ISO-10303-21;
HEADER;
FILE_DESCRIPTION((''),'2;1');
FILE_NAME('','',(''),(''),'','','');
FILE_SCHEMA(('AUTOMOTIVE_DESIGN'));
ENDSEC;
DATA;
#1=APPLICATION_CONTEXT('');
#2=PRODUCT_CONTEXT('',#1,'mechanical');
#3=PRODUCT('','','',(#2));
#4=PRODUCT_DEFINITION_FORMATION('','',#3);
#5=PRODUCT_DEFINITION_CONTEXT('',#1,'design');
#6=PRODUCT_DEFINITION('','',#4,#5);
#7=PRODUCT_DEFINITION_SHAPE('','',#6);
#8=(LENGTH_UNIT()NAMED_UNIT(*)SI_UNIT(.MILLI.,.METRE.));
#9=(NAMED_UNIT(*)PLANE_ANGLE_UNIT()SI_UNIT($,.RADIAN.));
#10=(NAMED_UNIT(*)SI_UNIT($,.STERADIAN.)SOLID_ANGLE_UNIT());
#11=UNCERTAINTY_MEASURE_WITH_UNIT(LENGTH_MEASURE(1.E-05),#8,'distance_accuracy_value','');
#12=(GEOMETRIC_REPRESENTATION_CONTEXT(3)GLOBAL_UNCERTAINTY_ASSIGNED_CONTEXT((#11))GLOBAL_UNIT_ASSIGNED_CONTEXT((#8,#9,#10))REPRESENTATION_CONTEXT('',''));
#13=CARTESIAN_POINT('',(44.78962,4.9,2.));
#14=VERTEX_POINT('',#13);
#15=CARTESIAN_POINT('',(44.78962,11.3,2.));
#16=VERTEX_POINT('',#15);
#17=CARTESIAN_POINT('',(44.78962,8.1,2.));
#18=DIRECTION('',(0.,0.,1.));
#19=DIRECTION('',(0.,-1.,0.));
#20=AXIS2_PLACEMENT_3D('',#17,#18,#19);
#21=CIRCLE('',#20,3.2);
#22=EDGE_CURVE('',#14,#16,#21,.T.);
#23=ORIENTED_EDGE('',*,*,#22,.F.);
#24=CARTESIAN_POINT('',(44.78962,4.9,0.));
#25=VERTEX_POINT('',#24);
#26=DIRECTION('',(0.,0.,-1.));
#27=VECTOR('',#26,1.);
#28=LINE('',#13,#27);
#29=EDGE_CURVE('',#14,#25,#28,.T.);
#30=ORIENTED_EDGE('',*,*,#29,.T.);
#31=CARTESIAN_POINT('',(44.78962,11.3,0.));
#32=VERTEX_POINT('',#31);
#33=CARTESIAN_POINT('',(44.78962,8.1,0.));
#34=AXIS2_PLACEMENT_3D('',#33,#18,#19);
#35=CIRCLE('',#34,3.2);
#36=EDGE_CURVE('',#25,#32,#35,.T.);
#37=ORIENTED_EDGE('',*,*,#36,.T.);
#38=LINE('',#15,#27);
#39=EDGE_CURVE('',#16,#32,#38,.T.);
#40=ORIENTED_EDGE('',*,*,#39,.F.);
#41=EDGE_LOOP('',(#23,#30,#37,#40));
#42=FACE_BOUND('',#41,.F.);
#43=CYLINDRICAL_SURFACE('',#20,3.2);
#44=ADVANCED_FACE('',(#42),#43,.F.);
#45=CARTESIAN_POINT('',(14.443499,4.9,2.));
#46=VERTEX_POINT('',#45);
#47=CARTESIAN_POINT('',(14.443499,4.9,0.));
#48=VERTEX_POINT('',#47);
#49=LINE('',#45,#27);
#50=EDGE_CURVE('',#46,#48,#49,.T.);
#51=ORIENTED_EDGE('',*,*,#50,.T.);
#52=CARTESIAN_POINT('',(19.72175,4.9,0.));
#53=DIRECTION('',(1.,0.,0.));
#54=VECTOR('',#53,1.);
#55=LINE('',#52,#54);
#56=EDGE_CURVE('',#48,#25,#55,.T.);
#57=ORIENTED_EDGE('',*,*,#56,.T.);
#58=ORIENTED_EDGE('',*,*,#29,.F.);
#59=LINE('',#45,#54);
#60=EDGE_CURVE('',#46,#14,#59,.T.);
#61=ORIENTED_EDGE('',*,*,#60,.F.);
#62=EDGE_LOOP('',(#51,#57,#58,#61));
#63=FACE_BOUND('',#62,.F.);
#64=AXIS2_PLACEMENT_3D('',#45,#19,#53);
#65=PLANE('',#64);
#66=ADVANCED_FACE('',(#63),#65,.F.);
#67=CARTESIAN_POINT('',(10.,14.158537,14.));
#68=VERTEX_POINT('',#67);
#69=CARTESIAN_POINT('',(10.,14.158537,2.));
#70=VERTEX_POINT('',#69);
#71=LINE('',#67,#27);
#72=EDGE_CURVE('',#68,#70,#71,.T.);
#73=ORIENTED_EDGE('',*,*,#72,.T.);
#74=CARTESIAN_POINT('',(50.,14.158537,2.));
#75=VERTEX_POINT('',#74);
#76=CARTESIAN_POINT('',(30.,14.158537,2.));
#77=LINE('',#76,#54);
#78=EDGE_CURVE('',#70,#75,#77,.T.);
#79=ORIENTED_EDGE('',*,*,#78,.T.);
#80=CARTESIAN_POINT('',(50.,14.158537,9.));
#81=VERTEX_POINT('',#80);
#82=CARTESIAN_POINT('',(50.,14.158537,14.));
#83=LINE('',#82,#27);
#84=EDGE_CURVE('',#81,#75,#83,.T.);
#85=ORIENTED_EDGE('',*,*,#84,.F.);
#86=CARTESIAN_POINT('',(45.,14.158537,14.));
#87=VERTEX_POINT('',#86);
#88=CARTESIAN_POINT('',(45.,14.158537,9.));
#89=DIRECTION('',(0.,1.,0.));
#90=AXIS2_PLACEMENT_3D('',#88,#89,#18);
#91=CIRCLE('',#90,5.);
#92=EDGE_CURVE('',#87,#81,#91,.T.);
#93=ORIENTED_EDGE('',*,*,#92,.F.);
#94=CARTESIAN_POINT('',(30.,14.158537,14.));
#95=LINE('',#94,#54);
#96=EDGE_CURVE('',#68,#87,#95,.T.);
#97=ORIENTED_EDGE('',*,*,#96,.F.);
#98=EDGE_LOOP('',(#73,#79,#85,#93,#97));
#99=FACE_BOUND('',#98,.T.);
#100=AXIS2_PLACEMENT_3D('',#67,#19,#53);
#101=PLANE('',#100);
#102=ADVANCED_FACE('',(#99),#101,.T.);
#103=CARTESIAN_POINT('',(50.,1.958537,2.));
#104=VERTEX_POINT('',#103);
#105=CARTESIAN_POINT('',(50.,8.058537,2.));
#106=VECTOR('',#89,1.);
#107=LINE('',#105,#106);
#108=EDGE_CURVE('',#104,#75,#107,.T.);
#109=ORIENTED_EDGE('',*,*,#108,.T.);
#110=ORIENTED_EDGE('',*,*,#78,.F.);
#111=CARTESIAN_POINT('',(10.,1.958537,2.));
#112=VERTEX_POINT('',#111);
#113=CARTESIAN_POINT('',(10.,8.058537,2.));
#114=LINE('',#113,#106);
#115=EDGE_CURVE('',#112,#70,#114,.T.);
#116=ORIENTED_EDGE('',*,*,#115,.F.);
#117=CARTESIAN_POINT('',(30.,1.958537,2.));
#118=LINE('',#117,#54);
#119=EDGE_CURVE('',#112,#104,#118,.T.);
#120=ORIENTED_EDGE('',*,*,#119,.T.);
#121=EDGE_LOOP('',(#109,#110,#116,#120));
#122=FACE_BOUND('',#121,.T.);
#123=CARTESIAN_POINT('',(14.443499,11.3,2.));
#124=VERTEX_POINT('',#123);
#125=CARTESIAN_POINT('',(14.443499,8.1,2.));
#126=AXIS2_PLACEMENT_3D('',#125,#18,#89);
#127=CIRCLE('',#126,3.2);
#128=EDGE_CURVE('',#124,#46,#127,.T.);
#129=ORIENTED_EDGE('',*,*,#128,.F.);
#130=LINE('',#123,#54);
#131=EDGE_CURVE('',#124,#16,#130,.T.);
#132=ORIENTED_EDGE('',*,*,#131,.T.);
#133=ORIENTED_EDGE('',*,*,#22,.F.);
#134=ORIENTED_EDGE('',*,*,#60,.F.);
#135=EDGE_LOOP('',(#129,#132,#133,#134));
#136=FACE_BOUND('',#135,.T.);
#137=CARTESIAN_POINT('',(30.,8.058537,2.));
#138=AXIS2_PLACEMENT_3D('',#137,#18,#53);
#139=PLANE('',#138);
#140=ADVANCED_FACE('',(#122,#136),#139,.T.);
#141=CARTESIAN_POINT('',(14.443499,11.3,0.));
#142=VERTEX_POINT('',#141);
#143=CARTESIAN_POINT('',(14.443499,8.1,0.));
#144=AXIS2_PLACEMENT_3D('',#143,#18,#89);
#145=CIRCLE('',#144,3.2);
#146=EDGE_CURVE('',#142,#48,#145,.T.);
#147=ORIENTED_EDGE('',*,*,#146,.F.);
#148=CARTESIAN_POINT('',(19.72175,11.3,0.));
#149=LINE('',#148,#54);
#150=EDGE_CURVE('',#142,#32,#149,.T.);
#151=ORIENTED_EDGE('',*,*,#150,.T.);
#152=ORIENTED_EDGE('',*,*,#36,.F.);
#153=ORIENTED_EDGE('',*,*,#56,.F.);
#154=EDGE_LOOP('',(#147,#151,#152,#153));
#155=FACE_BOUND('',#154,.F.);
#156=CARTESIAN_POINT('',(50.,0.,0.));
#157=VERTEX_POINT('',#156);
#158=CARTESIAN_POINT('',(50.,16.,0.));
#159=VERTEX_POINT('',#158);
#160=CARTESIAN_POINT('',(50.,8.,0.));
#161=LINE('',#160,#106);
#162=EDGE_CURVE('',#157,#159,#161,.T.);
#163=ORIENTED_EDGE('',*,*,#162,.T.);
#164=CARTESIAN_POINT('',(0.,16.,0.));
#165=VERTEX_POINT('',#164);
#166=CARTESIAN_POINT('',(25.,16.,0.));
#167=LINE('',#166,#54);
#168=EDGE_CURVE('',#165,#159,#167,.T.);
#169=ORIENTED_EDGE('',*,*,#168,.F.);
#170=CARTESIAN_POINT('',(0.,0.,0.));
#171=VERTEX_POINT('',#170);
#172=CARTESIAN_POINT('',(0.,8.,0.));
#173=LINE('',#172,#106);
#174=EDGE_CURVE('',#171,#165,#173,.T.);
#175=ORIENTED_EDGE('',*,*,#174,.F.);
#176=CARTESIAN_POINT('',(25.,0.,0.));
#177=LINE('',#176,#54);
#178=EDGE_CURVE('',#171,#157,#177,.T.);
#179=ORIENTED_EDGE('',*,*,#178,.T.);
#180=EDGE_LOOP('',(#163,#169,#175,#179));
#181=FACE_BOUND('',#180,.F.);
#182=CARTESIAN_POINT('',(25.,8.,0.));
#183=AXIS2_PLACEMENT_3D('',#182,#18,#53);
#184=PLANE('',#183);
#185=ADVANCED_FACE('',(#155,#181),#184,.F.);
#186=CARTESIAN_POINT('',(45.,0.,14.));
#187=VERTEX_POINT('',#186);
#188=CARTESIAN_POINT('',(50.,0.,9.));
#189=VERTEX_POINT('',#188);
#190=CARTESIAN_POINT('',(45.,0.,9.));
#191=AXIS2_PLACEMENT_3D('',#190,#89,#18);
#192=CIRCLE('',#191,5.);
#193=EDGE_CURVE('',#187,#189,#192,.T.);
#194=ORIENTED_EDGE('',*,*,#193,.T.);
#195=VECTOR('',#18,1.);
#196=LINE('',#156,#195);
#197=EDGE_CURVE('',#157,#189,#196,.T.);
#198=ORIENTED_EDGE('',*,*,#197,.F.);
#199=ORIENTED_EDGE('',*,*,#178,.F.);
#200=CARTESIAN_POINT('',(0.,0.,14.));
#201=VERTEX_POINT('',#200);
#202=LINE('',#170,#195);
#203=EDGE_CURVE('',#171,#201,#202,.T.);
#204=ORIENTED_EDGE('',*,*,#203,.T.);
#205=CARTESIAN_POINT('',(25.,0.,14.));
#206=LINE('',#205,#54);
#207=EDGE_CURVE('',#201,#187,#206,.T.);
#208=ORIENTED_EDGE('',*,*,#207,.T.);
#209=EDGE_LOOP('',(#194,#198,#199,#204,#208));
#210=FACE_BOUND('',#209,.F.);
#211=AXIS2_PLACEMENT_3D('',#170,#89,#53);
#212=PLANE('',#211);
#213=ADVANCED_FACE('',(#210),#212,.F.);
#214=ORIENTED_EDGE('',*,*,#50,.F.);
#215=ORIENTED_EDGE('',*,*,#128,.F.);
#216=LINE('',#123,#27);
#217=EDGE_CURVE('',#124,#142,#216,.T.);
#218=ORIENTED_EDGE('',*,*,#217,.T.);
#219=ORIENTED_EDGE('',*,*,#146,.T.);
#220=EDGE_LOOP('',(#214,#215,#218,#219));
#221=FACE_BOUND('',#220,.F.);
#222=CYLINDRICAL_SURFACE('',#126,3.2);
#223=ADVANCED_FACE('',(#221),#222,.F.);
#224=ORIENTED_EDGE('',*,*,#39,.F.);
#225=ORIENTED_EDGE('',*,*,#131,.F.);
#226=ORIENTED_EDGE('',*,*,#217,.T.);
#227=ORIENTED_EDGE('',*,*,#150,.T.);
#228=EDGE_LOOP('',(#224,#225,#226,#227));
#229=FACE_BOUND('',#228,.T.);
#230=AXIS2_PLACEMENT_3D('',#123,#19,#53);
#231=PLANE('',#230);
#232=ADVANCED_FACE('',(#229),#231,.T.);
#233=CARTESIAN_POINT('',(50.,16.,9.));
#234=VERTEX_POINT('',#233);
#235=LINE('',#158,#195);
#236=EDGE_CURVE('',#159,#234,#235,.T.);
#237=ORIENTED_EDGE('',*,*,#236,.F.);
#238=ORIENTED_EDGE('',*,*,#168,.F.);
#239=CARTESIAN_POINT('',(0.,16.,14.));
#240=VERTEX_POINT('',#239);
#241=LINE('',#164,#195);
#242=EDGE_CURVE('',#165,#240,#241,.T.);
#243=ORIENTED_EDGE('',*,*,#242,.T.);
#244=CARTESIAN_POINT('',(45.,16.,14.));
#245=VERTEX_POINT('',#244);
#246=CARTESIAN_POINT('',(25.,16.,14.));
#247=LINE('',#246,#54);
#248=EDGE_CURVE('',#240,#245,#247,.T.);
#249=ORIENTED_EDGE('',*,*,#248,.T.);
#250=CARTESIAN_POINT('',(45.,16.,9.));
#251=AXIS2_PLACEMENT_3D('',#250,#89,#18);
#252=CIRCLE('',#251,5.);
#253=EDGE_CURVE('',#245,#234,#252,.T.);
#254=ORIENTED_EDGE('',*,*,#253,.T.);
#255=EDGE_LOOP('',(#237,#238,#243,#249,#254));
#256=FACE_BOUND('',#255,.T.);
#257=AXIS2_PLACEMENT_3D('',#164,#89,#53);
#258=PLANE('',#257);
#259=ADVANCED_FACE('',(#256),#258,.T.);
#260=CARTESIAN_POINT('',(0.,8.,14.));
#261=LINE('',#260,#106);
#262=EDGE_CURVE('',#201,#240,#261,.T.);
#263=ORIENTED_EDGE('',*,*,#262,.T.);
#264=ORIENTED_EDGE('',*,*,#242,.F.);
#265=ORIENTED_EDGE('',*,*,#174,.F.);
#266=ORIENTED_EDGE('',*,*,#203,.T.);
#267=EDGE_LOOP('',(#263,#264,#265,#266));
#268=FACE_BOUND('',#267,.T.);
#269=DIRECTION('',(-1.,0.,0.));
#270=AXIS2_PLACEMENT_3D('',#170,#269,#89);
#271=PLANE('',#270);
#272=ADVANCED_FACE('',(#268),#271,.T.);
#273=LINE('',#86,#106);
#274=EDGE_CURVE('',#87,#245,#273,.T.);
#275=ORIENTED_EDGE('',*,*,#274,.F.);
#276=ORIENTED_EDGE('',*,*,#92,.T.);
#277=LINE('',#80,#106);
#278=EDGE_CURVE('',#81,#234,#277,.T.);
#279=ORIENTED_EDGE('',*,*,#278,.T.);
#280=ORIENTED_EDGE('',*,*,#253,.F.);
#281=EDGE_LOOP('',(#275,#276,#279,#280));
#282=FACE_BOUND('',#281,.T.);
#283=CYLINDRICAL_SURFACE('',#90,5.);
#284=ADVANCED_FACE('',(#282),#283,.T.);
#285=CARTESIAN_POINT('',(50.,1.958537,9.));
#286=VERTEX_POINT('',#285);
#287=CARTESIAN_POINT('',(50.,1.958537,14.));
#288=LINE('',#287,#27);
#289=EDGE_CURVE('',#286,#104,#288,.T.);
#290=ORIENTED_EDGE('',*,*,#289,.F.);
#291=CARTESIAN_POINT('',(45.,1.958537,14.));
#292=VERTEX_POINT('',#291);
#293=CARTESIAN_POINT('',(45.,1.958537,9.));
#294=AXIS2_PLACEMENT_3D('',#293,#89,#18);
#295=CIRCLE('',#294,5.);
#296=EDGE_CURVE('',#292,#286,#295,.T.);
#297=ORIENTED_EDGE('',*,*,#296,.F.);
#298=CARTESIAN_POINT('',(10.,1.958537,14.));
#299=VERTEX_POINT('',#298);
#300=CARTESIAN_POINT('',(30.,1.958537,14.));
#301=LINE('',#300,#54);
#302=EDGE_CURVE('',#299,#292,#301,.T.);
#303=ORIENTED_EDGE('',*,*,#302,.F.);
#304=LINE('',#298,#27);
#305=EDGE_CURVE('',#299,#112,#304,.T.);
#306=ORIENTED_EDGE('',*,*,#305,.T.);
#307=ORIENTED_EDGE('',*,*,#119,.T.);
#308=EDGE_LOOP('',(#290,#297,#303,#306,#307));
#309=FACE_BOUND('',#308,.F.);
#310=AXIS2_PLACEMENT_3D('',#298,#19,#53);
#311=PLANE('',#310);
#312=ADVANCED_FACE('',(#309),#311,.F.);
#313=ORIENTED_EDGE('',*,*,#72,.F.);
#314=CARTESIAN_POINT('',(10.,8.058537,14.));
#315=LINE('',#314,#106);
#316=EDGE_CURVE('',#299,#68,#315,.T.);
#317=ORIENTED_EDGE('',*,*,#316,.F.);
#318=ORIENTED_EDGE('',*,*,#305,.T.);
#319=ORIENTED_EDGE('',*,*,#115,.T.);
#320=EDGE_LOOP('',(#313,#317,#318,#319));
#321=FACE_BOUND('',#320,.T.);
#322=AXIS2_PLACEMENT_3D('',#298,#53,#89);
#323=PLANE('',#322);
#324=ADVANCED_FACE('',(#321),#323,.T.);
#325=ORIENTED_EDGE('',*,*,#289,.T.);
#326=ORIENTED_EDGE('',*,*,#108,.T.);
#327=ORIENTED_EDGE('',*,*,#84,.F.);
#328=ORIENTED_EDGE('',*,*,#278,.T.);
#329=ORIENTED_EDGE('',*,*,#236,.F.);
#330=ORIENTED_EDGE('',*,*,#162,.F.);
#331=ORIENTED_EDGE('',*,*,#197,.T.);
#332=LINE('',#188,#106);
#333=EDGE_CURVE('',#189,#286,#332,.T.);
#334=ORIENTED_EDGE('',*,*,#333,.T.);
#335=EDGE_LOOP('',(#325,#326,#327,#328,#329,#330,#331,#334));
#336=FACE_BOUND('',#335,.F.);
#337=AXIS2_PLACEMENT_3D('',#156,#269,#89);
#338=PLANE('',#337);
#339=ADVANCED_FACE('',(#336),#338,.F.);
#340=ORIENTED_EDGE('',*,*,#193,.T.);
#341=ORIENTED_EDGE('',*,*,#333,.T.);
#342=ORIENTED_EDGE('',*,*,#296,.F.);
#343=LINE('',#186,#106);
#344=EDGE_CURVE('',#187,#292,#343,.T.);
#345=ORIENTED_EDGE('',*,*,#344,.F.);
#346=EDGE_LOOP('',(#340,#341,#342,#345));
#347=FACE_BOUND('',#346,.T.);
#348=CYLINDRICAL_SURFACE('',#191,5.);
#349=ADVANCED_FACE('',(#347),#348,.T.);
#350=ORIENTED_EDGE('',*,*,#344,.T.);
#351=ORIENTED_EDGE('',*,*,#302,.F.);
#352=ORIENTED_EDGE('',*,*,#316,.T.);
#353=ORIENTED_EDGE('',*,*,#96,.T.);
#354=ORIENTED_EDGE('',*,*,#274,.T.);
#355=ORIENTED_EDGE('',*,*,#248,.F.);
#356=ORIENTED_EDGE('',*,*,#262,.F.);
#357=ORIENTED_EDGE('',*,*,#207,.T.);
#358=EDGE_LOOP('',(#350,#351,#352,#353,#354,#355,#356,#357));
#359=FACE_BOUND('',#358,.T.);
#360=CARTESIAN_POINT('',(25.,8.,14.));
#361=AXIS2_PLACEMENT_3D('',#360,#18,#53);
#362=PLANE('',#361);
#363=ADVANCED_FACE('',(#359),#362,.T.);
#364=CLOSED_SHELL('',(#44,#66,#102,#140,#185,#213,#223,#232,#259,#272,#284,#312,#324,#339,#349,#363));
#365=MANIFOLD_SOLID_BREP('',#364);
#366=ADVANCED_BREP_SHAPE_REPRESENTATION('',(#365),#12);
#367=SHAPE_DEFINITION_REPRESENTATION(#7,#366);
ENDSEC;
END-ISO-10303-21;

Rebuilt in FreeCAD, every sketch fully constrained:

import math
import FreeCAD as App
import Part
import Sketcher
Q = App.Units.Quantity


def edges_at(feature, points):
    """Names of the edges that pass closest to the given points."""
    edges = feature.Shape.Edges
    near = lambda p: min(range(len(edges)), key=lambda i: edges[i].distToShape(Part.Vertex(*p))[0])
    return sorted({f"Edge{near(p) + 1}" for p in points})

doc = App.newDocument("Part")
body = doc.addObject("PartDesign::Body", "Body")

# Sketch on XY plane
sketch1 = body.newObject("Sketcher::SketchObject", "Sketch")
sketch1.AttachmentSupport = (doc.getObject("XY_Plane"), [""])
sketch1.MapMode = "FlatFace"
sketch1.addGeometry([
    Part.LineSegment(App.Vector(0, 16, 0), App.Vector(0, 0, 0)),
    Part.LineSegment(App.Vector(0, 0, 0), App.Vector(50, 0, 0)),
    Part.LineSegment(App.Vector(50, 0, 0), App.Vector(50, 16, 0)),
    Part.LineSegment(App.Vector(50, 16, 0), App.Vector(0, 16, 0)),
], False)
sketch1.addConstraint([
    Sketcher.Constraint("Coincident", 0, 2, 1, 1),
    Sketcher.Constraint("Coincident", 1, 2, 2, 1),
    Sketcher.Constraint("Coincident", 2, 2, 3, 1),
    Sketcher.Constraint("Coincident", 3, 2, 0, 1),
    Sketcher.Constraint("Vertical", 0),
    Sketcher.Constraint("Horizontal", 1),
    Sketcher.Constraint("Vertical", 2),
    Sketcher.Constraint("Horizontal", 3),
    Sketcher.Constraint("Coincident", 0, 2, -1, 1),
    Sketcher.Constraint("DistanceX", 1, 1, 1, 2, Q("50 mm")),
    Sketcher.Constraint("DistanceY", 0, 2, 0, 1, Q("16 mm")),
])
pad1 = body.newObject("PartDesign::Pad", "Pad")
pad1.Profile = sketch1
pad1.Length = 14

# Sketch on XY plane
sketch2 = body.newObject("Sketcher::SketchObject", "Sketch001")
sketch2.AttachmentSupport = (doc.getObject("XY_Plane"), [""])
sketch2.MapMode = "FlatFace"
sketch2.AttachmentOffset = App.Placement(App.Vector(0, 0, 14), App.Rotation())
sketch2.addGeometry([
    Part.LineSegment(App.Vector(10, 14, 0), App.Vector(10, 2, 0)),
    Part.LineSegment(App.Vector(10, 2, 0), App.Vector(50, 2, 0)),
    Part.LineSegment(App.Vector(50, 2, 0), App.Vector(50, 14, 0)),
    Part.LineSegment(App.Vector(50, 14, 0), App.Vector(10, 14, 0)),
], False)
sketch2.addConstraint([
    Sketcher.Constraint("Coincident", 0, 2, 1, 1),
    Sketcher.Constraint("Coincident", 1, 2, 2, 1),
    Sketcher.Constraint("Coincident", 2, 2, 3, 1),
    Sketcher.Constraint("Coincident", 3, 2, 0, 1),
    Sketcher.Constraint("Vertical", 0),
    Sketcher.Constraint("Horizontal", 1),
    Sketcher.Constraint("Vertical", 2),
    Sketcher.Constraint("Horizontal", 3),
    Sketcher.Constraint("DistanceX", 1, 1, 1, 2, Q("40 mm")),
    Sketcher.Constraint("DistanceY", 0, 2, 0, 1, Q("12.2 mm")),
    Sketcher.Constraint("DistanceX", -1, 1, 0, 2, Q("10 mm")),
    Sketcher.Constraint("DistanceY", -1, 1, 0, 2, Q("1.958537 mm")),
])
pocket1 = body.newObject("PartDesign::Pocket", "Pocket")
pocket1.Profile = sketch2
pocket1.Length = 12

# Sketch on XY plane
sketch3 = body.newObject("Sketcher::SketchObject", "Sketch002")
sketch3.AttachmentSupport = (doc.getObject("XY_Plane"), [""])
sketch3.MapMode = "FlatFace"
sketch3.AttachmentOffset = App.Placement(App.Vector(0, 0, 2), App.Rotation())
sketch3.addGeometry([
    Part.ArcOfCircle(Part.Circle(App.Vector(14.4, 8.1, 0), App.Vector(0, 0, 1), 3.2), math.radians(90), math.radians(270)),
    Part.LineSegment(App.Vector(14.4, 4.9, 0), App.Vector(44.8, 4.9, 0)),
    Part.ArcOfCircle(Part.Circle(App.Vector(44.8, 8.1, 0), App.Vector(0, 0, 1), 3.2), math.radians(-90), math.radians(90)),
    Part.LineSegment(App.Vector(44.8, 11.3, 0), App.Vector(14.4, 11.3, 0)),
], False)
sketch3.addConstraint([
    Sketcher.Constraint("Tangent", 0, 2, 1, 1),
    Sketcher.Constraint("Tangent", 1, 2, 2, 1),
    Sketcher.Constraint("Tangent", 2, 2, 3, 1),
    Sketcher.Constraint("Tangent", 3, 2, 0, 1),
    Sketcher.Constraint("Horizontal", 1),
    Sketcher.Constraint("Horizontal", 3),
    Sketcher.Constraint("Radius", 0, Q("3.2 mm")),
    Sketcher.Constraint("DistanceY", -1, 1, 0, 3, Q("8.1 mm")),
    Sketcher.Constraint("DistanceX", 1, 1, 1, 2, Q("30.346121 mm")),
    Sketcher.Constraint("DistanceX", -1, 1, 0, 3, Q("14.443499 mm")),
])
pocket2 = body.newObject("PartDesign::Pocket", "Pocket001")
pocket2.Profile = sketch3
pocket2.Length = 5
doc.recompute()

fillet = body.newObject("PartDesign::Fillet", "Fillet")
fillet.Base = (pocket2, edges_at(pocket2, [(50, 0.979, 14), (50, 15.079, 14)]))
fillet.Radius = 5

doc.recompute()
